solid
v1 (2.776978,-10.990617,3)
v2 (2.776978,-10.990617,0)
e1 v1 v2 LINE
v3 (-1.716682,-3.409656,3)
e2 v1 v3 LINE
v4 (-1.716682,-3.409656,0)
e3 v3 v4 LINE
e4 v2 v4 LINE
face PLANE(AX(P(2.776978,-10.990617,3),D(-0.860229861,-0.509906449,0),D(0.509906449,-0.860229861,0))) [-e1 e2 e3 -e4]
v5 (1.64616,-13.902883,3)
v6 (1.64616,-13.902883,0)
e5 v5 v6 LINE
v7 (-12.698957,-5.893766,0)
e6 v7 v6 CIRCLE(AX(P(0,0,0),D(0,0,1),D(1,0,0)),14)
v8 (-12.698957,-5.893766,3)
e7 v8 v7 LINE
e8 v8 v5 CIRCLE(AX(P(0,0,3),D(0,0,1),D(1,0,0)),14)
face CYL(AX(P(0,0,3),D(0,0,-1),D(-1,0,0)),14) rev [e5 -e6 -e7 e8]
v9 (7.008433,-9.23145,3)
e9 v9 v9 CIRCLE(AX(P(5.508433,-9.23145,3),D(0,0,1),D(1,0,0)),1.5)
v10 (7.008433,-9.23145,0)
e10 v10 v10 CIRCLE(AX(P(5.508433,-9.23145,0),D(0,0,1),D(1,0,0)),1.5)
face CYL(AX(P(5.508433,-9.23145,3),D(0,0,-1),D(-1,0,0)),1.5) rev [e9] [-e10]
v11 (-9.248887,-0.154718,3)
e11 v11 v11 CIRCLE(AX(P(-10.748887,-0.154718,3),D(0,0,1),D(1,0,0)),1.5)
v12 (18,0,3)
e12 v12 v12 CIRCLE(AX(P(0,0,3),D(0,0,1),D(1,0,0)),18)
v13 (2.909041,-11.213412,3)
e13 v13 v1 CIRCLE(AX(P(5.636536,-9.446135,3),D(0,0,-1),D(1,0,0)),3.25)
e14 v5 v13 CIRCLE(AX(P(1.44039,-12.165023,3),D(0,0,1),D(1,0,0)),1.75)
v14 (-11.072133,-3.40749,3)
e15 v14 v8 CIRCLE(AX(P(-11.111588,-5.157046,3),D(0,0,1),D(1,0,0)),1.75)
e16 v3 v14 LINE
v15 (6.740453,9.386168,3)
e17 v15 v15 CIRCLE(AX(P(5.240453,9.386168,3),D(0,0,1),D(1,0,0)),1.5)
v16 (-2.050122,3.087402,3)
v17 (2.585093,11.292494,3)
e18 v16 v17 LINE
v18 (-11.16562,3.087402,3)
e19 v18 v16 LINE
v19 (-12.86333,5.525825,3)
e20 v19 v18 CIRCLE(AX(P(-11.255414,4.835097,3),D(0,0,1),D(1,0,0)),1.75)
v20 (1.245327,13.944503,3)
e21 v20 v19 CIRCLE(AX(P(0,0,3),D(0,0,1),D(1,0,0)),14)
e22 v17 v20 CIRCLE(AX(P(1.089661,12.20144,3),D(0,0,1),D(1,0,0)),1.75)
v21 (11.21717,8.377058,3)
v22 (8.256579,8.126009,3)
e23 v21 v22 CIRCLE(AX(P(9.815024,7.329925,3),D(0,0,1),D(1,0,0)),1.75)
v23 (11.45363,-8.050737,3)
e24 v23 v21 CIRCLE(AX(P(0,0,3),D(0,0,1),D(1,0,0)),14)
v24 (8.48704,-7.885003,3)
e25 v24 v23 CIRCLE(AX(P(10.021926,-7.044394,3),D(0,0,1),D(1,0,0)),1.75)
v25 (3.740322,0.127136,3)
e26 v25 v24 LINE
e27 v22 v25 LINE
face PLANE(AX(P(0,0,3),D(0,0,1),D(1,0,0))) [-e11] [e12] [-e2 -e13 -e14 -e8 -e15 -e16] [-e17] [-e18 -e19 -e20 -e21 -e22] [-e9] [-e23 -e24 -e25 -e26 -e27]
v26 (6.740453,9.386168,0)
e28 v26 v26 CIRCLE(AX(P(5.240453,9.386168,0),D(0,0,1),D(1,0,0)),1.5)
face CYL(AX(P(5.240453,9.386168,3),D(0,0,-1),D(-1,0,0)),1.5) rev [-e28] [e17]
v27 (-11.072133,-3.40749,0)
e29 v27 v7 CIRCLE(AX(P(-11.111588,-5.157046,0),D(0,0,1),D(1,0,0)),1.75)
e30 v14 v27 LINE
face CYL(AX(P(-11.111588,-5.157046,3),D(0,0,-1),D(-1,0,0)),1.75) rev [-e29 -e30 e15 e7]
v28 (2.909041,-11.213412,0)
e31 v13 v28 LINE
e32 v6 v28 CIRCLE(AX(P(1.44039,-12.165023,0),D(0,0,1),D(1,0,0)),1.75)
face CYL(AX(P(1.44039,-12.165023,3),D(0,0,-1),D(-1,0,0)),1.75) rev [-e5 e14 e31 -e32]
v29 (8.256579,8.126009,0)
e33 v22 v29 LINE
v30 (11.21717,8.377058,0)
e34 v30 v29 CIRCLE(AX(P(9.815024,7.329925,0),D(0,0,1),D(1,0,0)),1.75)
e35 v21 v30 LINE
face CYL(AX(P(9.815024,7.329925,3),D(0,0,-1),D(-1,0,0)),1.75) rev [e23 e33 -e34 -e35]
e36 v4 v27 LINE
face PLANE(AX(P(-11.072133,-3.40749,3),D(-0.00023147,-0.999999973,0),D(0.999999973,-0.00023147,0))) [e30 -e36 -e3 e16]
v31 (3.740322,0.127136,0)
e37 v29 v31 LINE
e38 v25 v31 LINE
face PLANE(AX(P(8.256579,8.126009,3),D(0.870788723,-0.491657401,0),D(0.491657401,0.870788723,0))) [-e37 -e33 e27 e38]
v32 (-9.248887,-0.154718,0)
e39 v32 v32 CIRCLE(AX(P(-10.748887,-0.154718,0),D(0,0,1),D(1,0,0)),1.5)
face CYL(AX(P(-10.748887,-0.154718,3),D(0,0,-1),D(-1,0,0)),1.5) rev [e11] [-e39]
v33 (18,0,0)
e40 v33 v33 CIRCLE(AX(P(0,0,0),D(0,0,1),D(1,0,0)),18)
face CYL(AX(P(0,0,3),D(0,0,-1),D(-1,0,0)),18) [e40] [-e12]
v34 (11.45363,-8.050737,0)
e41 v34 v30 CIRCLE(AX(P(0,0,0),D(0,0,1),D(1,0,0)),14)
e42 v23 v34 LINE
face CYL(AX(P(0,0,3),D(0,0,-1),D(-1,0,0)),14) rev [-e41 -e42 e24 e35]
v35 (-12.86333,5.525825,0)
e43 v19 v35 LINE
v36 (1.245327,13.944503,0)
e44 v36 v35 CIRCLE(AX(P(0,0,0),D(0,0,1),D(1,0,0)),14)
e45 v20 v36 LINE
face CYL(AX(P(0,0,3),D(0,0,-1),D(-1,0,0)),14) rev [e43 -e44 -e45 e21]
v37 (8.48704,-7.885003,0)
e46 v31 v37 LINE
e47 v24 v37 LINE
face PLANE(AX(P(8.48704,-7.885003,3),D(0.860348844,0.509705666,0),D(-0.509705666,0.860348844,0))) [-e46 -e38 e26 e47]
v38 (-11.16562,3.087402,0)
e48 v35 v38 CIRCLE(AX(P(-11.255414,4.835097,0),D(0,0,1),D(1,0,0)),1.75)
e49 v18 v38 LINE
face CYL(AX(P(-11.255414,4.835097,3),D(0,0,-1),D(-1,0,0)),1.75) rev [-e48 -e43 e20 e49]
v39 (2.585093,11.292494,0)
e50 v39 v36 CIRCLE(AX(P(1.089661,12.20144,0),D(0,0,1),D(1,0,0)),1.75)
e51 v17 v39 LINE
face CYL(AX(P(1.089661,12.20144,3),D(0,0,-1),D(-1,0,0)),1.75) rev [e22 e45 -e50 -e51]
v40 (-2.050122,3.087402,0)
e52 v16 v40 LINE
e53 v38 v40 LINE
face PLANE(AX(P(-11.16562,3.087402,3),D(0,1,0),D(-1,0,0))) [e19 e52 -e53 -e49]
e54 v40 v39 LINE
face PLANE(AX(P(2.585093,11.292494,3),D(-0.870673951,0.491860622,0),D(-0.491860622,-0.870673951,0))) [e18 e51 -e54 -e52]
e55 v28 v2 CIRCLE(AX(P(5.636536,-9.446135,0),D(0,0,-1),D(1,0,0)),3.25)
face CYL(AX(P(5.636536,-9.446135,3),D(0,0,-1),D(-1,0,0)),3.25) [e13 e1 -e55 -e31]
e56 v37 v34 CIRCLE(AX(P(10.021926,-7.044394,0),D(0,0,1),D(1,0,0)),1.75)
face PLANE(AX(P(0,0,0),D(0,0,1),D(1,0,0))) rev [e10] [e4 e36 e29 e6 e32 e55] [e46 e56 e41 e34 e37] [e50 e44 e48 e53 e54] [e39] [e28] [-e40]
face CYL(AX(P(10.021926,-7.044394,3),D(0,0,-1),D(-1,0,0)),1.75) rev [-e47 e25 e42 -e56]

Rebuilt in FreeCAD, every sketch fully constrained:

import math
import FreeCAD as App
import Part
import Sketcher
from FreeCAD import Vector

doc = App.newDocument("Part")
params = doc.addObject("Spreadsheet::Sheet", "Params")
for row, (alias, value) in enumerate([
    ("sketch1_diameter", "36 mm"),
    ("sketch1_diameter2", "3 mm"),
    ("sketch1_diameter3", "3 mm"),
    ("sketch1_diameter4", "3 mm"),
    ("sketch1_radius", "14 mm"),
    ("pad1_length", "3 mm"),
], start=1):
    params.set(f"A{row}", alias)
    params.set(f"B{row}", "=" + value)
    params.setAlias(f"B{row}", alias)

body = doc.addObject("PartDesign::Body", "Body")

sketch1 = doc.addObject("Sketcher::SketchObject", "Sketch")
body.addObject(sketch1)
sketch1.AttachmentSupport = (doc.XY_Plane, [""])
sketch1.MapMode = "FlatFace"
sketch1.addGeometry(Part.Circle(Vector(0, 0, 0), Vector(0, 0, 1), 18), False)
sketch1.addGeometry(Part.ArcOfCircle(Part.Circle(Vector(-11.111588, -5.157046, 0), Vector(0, 0, 1), 1.75), math.radians(88.708134), math.radians(204.896683)), False)
sketch1.addGeometry(Part.LineSegment(Vector(-11.072133, -3.40749, 0), Vector(-1.716682, -3.409656, 0)), False)
sketch1.addGeometry(Part.LineSegment(Vector(-1.716682, -3.409656, 0), Vector(2.776978, -10.990617, 0)), False)
sketch1.addGeometry(Part.ArcOfCircle(Part.Circle(Vector(5.636536, -9.446135, 0), Vector(0, 0, 1), 3.25), math.radians(-151.625974), math.radians(-147.058829)), False)
sketch1.addGeometry(Part.ArcOfCircle(Part.Circle(Vector(1.44039, -12.165023, 0), Vector(0, 0, 1), 1.75), math.radians(-83.247379), math.radians(32.941171)), False)
sketch1.addGeometry(Part.ArcOfCircle(Part.Circle(Vector(0, 0, 0), Vector(0, 0, 1), 14), math.radians(-155.103317), math.radians(-83.247379)), False)
sketch1.addGeometry(Part.Circle(Vector(-10.748887, -0.154718, 0), Vector(0, 0, 1), 1.5), False)
sketch1.addGeometry(Part.Circle(Vector(5.508433, -9.23145, 0), Vector(0, 0, 1), 1.5), False)
sketch1.addGeometry(Part.LineSegment(Vector(-2.050122, 3.087402, 0), Vector(-11.16562, 3.087402, 0)), False)
sketch1.addGeometry(Part.ArcOfCircle(Part.Circle(Vector(-11.255414, 4.835097, 0), Vector(0, 0, 1), 1.75), math.radians(156.752621), math.radians(272.941171)), False)
sketch1.addGeometry(Part.ArcOfCircle(Part.Circle(Vector(0, 0, 0), Vector(0, 0, 1), 14), math.radians(84.896683), math.radians(156.752621)), False)
sketch1.addGeometry(Part.ArcOfCircle(Part.Circle(Vector(1.089661, 12.20144, 0), Vector(0, 0, 1), 1.75), math.radians(-31.291866), math.radians(84.896683)), False)
sketch1.addGeometry(Part.LineSegment(Vector(2.585093, 11.292494, 0), Vector(-2.050122, 3.087402, 0)), False)
sketch1.addGeometry(Part.ArcOfCircle(Part.Circle(Vector(10.021926, -7.044394, 0), Vector(0, 0, 1), 1.75), math.radians(-151.291866), math.radians(-35.103317)), False)
sketch1.addGeometry(Part.LineSegment(Vector(8.48704, -7.885003, 0), Vector(3.740322, 0.127136, 0)), False)
sketch1.addGeometry(Part.LineSegment(Vector(3.740322, 0.127136, 0), Vector(8.256579, 8.126009, 0)), False)
sketch1.addGeometry(Part.ArcOfCircle(Part.Circle(Vector(9.815024, 7.329925, 0), Vector(0, 0, 1), 1.75), math.radians(36.752621), math.radians(152.941171)), False)
sketch1.addGeometry(Part.ArcOfCircle(Part.Circle(Vector(0, 0, 0), Vector(0, 0, 1), 14), math.radians(-35.103317), math.radians(36.752621)), False)
sketch1.addGeometry(Part.Circle(Vector(5.240453, 9.386168, 0), Vector(0, 0, 1), 1.5), False)
sketch1.addConstraint(Sketcher.Constraint("Coincident", 1, 1, 2, 1))
sketch1.addConstraint(Sketcher.Constraint("Coincident", 2, 2, 3, 1))
sketch1.addConstraint(Sketcher.Constraint("Coincident", 3, 2, 4, 1))
sketch1.addConstraint(Sketcher.Constraint("Coincident", 4, 2, 5, 2))
sketch1.addConstraint(Sketcher.Constraint("Coincident", 5, 1, 6, 2))
sketch1.addConstraint(Sketcher.Constraint("Coincident", 6, 1, 1, 2))
sketch1.addConstraint(Sketcher.Constraint("Coincident", 9, 2, 10, 2))
sketch1.addConstraint(Sketcher.Constraint("Coincident", 10, 1, 11, 2))
sketch1.addConstraint(Sketcher.Constraint("Coincident", 11, 1, 12, 2))
sketch1.addConstraint(Sketcher.Constraint("Coincident", 12, 1, 13, 1))
sketch1.addConstraint(Sketcher.Constraint("Coincident", 13, 2, 9, 1))
sketch1.addConstraint(Sketcher.Constraint("Coincident", 14, 1, 15, 1))
sketch1.addConstraint(Sketcher.Constraint("Coincident", 15, 2, 16, 1))
sketch1.addConstraint(Sketcher.Constraint("Coincident", 16, 2, 17, 2))
sketch1.addConstraint(Sketcher.Constraint("Coincident", 17, 1, 18, 2))
sketch1.addConstraint(Sketcher.Constraint("Coincident", 18, 1, 14, 2))
sketch1.addConstraint(Sketcher.Constraint("Horizontal", 9))
sketch1.addConstraint(Sketcher.Constraint("Coincident", 0, 3, -1, 1))
sketch1.addConstraint(Sketcher.Constraint("Coincident", 6, 3, -1, 1))
sketch1.addConstraint(Sketcher.Constraint("Coincident", 11, 3, -1, 1))
sketch1.addConstraint(Sketcher.Constraint("Coincident", 18, 3, -1, 1))
sketch1.addConstraint(Sketcher.Constraint("Diameter", 0, 36.0))
sketch1.addConstraint(Sketcher.Constraint("Diameter", 7, 3.0))
sketch1.addConstraint(Sketcher.Constraint("Diameter", 8, 3.0))
sketch1.addConstraint(Sketcher.Constraint("Diameter", 19, 3.0))
sketch1.addConstraint(Sketcher.Constraint("Radius", 6, 14.0))
sketch1.addConstraint(Sketcher.Constraint("Radius", 11, 14.0))
sketch1.addConstraint(Sketcher.Constraint("Radius", 18, 14.0))
sketch1.addConstraint(Sketcher.Constraint("Radius", 1, 1.75))
sketch1.addConstraint(Sketcher.Constraint("Radius", 4, 3.25))
sketch1.addConstraint(Sketcher.Constraint("Radius", 5, 1.75))
sketch1.addConstraint(Sketcher.Constraint("Radius", 10, 1.75))
sketch1.addConstraint(Sketcher.Constraint("Radius", 12, 1.75))
sketch1.addConstraint(Sketcher.Constraint("Radius", 14, 1.75))
sketch1.addConstraint(Sketcher.Constraint("Radius", 17, 1.75))
sketch1.addConstraint(Sketcher.Constraint("DistanceX", 9, 2, 9, 1, 9.115498))
sketch1.addConstraint(Sketcher.Constraint("DistanceX", 4, 2, 14, 1, 5.577999))
sketch1.addConstraint(Sketcher.Constraint("DistanceX", 1, 3, 7, 3, 0.362701))
sketch1.addConstraint(Sketcher.Constraint("DistanceY", 4, 3, 18, 1, 1.395398))
sketch1.addConstraint(Sketcher.Constraint("Distance", 2, 9.355451))
sketch1.addConstraint(Sketcher.Constraint("Distance", 13, 9.423839))
sketch1.addConstraint(Sketcher.Constraint("Distance", 16, 9.18578))
sketch1.addConstraint(Sketcher.Constraint("DistanceX", -1, 1, 5, 3, 1.44039))
sketch1.addConstraint(Sketcher.Constraint("DistanceY", 7, 3, -1, 1, 0.154718))
sketch1.addConstraint(Sketcher.Constraint("DistanceY", 8, 3, -1, 1, 9.23145))
sketch1.addConstraint(Sketcher.Constraint("DistanceX", -1, 1, 12, 3, 1.089661))
sketch1.addConstraint(Sketcher.Constraint("DistanceY", 1, 1, -1, 1, 3.40749))
sketch1.addConstraint(Sketcher.Constraint("DistanceX", -1, 1, 3, 2, 2.776978))
sketch1.addConstraint(Sketcher.Constraint("DistanceX", -1, 1, 4, 2, 2.909041))
sketch1.addConstraint(Sketcher.Constraint("DistanceX", -1, 1, 5, 1, 1.64616))
sketch1.addConstraint(Sketcher.Constraint("DistanceX", 9, 2, -1, 1, 11.16562))
sketch1.addConstraint(Sketcher.Constraint("DistanceX", 10, 1, -1, 1, 12.86333))
sketch1.addConstraint(Sketcher.Constraint("DistanceX", -1, 1, 16, 2, 8.256579))
sketch1.addConstraint(Sketcher.Constraint("DistanceY", -1, 1, 16, 2, 8.126009))
sketch1.addConstraint(Sketcher.Constraint("DistanceX", -1, 1, 17, 1, 11.21717))
sketch1.addConstraint(Sketcher.Constraint("DistanceX", -1, 1, 18, 1, 11.45363))
sketch1.addConstraint(Sketcher.Constraint("DistanceY", 4, 3, 1, 3, 4.289089))
sketch1.addConstraint(Sketcher.Constraint("DistanceX", 1, 3, 8, 3, 16.620021))
sketch1.addConstraint(Sketcher.Constraint("DistanceY", 5, 3, 10, 3, 17.00012))
sketch1.addConstraint(Sketcher.Constraint("DistanceX", 4, 3, 14, 3, 4.38539))
sketch1.addConstraint(Sketcher.Constraint("DistanceX", 12, 3, 19, 3, 4.150792))
sketch1.addConstraint(Sketcher.Constraint("DistanceY", 3, 2, 2, 2, 7.580961))
sketch1.addConstraint(Sketcher.Constraint("DistanceX", 6, 1, 1, 3, 1.58737))
sketch1.addConstraint(Sketcher.Constraint("DistanceY", 12, 1, 11, 1, 2.652009))
sketch1.addConstraint(Sketcher.Constraint("DistanceY", 2, 2, 15, 2, 3.536792))
sketch1.addConstraint(Sketcher.Constraint("DistanceY", 16, 2, 19, 3, 1.260159))
sketch1.setExpression("Constraints[21]", "Params.sketch1_diameter")
sketch1.setExpression("Constraints[22]", "Params.sketch1_diameter2")
sketch1.setExpression("Constraints[23]", "Params.sketch1_diameter3")
sketch1.setExpression("Constraints[24]", "Params.sketch1_diameter4")
sketch1.setExpression("Constraints[25]", "Params.sketch1_radius")
pad1 = doc.addObject("PartDesign::Pad", "Pad")
body.addObject(pad1)
pad1.Profile = sketch1
pad1.setExpression("Length", "Params.pad1_length")

doc.recompute()
